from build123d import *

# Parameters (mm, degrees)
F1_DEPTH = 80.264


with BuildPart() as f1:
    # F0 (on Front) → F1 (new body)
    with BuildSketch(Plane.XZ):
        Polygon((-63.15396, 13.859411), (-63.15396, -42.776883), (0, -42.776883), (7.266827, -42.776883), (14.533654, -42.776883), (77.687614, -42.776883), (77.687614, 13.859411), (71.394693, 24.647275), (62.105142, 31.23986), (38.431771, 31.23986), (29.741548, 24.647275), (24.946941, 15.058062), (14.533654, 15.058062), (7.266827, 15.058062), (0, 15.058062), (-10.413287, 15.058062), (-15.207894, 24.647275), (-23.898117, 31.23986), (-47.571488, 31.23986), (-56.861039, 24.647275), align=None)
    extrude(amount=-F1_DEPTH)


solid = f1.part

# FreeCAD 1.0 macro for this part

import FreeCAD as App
import Part
import Sketcher
from FreeCAD import Vector
Q = App.Units.Quantity

doc = App.newDocument("Part")
body = doc.addObject("PartDesign::Body", "Body")

sketch1 = doc.addObject("Sketcher::SketchObject", "Sketch")
body.addObject(sketch1)
sketch1.AttachmentSupport = (doc.XZ_Plane, [""])
sketch1.MapMode = "FlatFace"
sketch1.addGeometry(Part.LineSegment(Vector(-63.15396, 13.859411, 0), Vector(-63.15396, -42.776883, 0)), False)
sketch1.addGeometry(Part.LineSegment(Vector(-63.15396, -42.776883, 0), Vector(77.687614, -42.776883, 0)), False)
sketch1.addGeometry(Part.LineSegment(Vector(77.687614, -42.776883, 0), Vector(77.687614, 13.859411, 0)), False)
sketch1.addGeometry(Part.LineSegment(Vector(77.687614, 13.859411, 0), Vector(71.394693, 24.647275, 0)), False)
sketch1.addGeometry(Part.LineSegment(Vector(71.394693, 24.647275, 0), Vector(62.105142, 31.23986, 0)), False)
sketch1.addGeometry(Part.LineSegment(Vector(62.105142, 31.23986, 0), Vector(38.431771, 31.23986, 0)), False)
sketch1.addGeometry(Part.LineSegment(Vector(38.431771, 31.23986, 0), Vector(29.741548, 24.647275, 0)), False)
sketch1.addGeometry(Part.LineSegment(Vector(29.741548, 24.647275, 0), Vector(24.946941, 15.058062, 0)), False)
sketch1.addGeometry(Part.LineSegment(Vector(24.946941, 15.058062, 0), Vector(-10.413287, 15.058062, 0)), False)
sketch1.addGeometry(Part.LineSegment(Vector(-10.413287, 15.058062, 0), Vector(-15.207894, 24.647275, 0)), False)
sketch1.addGeometry(Part.LineSegment(Vector(-15.207894, 24.647275, 0), Vector(-23.898117, 31.23986, 0)), False)
sketch1.addGeometry(Part.LineSegment(Vector(-23.898117, 31.23986, 0), Vector(-47.571488, 31.23986, 0)), False)
sketch1.addGeometry(Part.LineSegment(Vector(-47.571488, 31.23986, 0), Vector(-56.861039, 24.647275, 0)), False)
sketch1.addGeometry(Part.LineSegment(Vector(-56.861039, 24.647275, 0), Vector(-63.15396, 13.859411, 0)), False)
sketch1.addConstraint(Sketcher.Constraint("Coincident", 0, 2, 1, 1))
sketch1.addConstraint(Sketcher.Constraint("Coincident", 1, 2, 2, 1))
sketch1.addConstraint(Sketcher.Constraint("Coincident", 2, 2, 3, 1))
sketch1.addConstraint(Sketcher.Constraint("Coincident", 3, 2, 4, 1))
sketch1.addConstraint(Sketcher.Constraint("Coincident", 4, 2, 5, 1))
sketch1.addConstraint(Sketcher.Constraint("Coincident", 5, 2, 6, 1))
sketch1.addConstraint(Sketcher.Constraint("Coincident", 6, 2, 7, 1))
sketch1.addConstraint(Sketcher.Constraint("Coincident", 7, 2, 8, 1))
sketch1.addConstraint(Sketcher.Constraint("Coincident", 8, 2, 9, 1))
sketch1.addConstraint(Sketcher.Constraint("Coincident", 9, 2, 10, 1))
sketch1.addConstraint(Sketcher.Constraint("Coincident", 10, 2, 11, 1))
sketch1.addConstraint(Sketcher.Constraint("Coincident", 11, 2, 12, 1))
sketch1.addConstraint(Sketcher.Constraint("Coincident", 12, 2, 13, 1))
sketch1.addConstraint(Sketcher.Constraint("Coincident", 13, 2, 0, 1))
sketch1.addConstraint(Sketcher.Constraint("Vertical", 0))
sketch1.addConstraint(Sketcher.Constraint("Horizontal", 1))
sketch1.addConstraint(Sketcher.Constraint("Vertical", 2))
sketch1.addConstraint(Sketcher.Constraint("Horizontal", 5))
sketch1.addConstraint(Sketcher.Constraint("Horizontal", 8))
sketch1.addConstraint(Sketcher.Constraint("Horizontal", 11))
sketch1.addConstraint(Sketcher.Constraint("Horizontal", 3, 2, 6, 2))
sketch1.addConstraint(Sketcher.Constraint("Horizontal", 6, 2, 9, 2))
sketch1.addConstraint(Sketcher.Constraint("Horizontal", 5, 2, 10, 2))
sketch1.addConstraint(Sketcher.Constraint("Horizontal", 9, 2, 12, 2))
sketch1.addConstraint(Sketcher.Constraint("Horizontal", 2, 2, 13, 2))
sketch1.addConstraint(Sketcher.Constraint("Equal", 5, 11))
sketch1.addConstraint(Sketcher.Constraint("Equal", 7, 9))
sketch1.addConstraint(Sketcher.Constraint("Equal", 6, 10))
sketch1.addConstraint(Sketcher.Constraint("Equal", 4, 12))
sketch1.addConstraint(Sketcher.Constraint("Equal", 3, 13))
sketch1.addConstraint(Sketcher.Constraint("DistanceX", 5, 2, 5, 1, 23.673371))
sketch1.addConstraint(Sketcher.Constraint("DistanceX", 0, 2, 4, 2, 125.259102))
sketch1.addConstraint(Sketcher.Constraint("DistanceY", 7, 2, 5, 2, 16.181798))
sketch1.addConstraint(Sketcher.Constraint("DistanceX", 7, 2, 4, 2, 37.158201))
sketch1.addConstraint(Sketcher.Constraint("Distance", 3, 12.48915))
sketch1.addConstraint(Sketcher.Constraint("DistanceX", 1, 1, 1, 2, 140.841574))
sketch1.addConstraint(Sketcher.Constraint("DistanceY", 0, 2, 0, 1, 56.636294))
sketch1.addConstraint(Sketcher.Constraint("DistanceX", 0, 2, -1, 1, 63.15396))
sketch1.addConstraint(Sketcher.Constraint("DistanceY", -1, 1, 2, 2, 13.859411))
sketch1.addConstraint(Sketcher.Constraint("DistanceY", -1, 1, 4, 2, 31.23986))
sketch1.addConstraint(Sketcher.Constraint("DistanceX", -1, 1, 6, 2, 29.741548))
sketch1.addConstraint(Sketcher.Constraint("DistanceX", 12, 2, -1, 1, 56.861039))
pad1 = doc.addObject("PartDesign::Pad", "Pad")
body.addObject(pad1)
pad1.Profile = sketch1
pad1.Length = Q("3.16 in")
pad1.Reversed = True

doc.recompute()
